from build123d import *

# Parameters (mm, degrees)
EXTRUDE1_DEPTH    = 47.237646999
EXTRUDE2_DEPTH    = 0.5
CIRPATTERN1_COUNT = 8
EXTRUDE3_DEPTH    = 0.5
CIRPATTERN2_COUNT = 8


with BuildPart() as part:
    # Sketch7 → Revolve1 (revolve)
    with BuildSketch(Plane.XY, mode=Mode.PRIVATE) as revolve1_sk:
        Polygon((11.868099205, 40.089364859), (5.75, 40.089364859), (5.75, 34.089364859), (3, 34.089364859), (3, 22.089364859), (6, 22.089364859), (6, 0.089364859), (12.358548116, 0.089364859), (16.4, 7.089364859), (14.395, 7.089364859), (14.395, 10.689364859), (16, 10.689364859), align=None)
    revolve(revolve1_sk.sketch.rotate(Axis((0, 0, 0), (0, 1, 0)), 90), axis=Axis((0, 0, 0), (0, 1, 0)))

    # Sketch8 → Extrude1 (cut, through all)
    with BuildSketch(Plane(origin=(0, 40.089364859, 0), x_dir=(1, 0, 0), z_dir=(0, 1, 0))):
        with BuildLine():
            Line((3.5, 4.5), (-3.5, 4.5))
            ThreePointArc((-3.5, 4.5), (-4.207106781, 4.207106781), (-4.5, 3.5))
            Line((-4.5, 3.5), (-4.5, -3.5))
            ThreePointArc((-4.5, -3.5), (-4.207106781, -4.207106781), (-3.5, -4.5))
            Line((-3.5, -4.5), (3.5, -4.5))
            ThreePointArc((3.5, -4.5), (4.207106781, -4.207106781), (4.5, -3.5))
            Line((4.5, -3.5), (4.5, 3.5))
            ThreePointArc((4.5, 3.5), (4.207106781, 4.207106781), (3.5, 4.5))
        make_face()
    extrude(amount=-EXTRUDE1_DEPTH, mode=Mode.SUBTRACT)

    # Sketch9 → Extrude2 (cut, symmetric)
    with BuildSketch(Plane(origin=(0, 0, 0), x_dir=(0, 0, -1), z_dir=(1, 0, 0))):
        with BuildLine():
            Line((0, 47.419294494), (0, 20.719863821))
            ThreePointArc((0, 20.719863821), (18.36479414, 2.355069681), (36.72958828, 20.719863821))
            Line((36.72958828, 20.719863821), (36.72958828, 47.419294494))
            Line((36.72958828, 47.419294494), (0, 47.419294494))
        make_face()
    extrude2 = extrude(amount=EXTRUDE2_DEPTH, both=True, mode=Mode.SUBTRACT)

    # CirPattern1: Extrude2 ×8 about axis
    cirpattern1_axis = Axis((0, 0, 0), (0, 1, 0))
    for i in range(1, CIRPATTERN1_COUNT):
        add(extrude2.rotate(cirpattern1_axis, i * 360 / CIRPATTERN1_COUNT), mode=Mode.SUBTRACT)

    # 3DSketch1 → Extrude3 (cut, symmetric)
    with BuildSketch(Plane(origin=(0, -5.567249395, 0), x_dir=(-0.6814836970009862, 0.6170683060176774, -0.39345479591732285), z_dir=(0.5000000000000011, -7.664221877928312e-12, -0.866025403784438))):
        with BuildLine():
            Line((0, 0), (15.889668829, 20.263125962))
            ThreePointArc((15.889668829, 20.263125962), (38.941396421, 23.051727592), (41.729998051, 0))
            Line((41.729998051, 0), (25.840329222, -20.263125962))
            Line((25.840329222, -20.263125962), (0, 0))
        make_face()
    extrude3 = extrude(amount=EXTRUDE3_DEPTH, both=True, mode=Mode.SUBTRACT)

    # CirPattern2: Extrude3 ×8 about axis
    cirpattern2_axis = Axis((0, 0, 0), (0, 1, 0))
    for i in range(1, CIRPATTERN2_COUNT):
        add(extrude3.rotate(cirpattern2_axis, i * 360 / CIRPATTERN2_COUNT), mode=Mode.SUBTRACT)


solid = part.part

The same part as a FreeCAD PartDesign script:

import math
import FreeCAD as App
import Part
import Sketcher
Q = App.Units.Quantity

doc = App.newDocument("Part")
body = doc.addObject("PartDesign::Body", "Body")

sketch1 = body.newObject("Sketcher::SketchObject", "Sketch")
sketch1.AttachmentSupport = (doc.getObject("XY_Plane"), [""])
sketch1.MapMode = "FlatFace"
sketch1.addGeometry([
    Part.LineSegment(App.Vector(11.9, 40.1, 0), App.Vector(5.8, 40.1, 0)),
    Part.LineSegment(App.Vector(5.8, 40.1, 0), App.Vector(5.8, 34.1, 0)),
    Part.LineSegment(App.Vector(5.8, 34.1, 0), App.Vector(3, 34.1, 0)),
    Part.LineSegment(App.Vector(3, 34.1, 0), App.Vector(3, 22.1, 0)),
    Part.LineSegment(App.Vector(3, 22.1, 0), App.Vector(6, 22.1, 0)),
    Part.LineSegment(App.Vector(6, 22.1, 0), App.Vector(6, 0.1, 0)),
    Part.LineSegment(App.Vector(6, 0.1, 0), App.Vector(12.4, 0.1, 0)),
    Part.LineSegment(App.Vector(12.4, 0.1, 0), App.Vector(16.4, 7.1, 0)),
    Part.LineSegment(App.Vector(16.4, 7.1, 0), App.Vector(14.4, 7.1, 0)),
    Part.LineSegment(App.Vector(14.4, 7.1, 0), App.Vector(14.4, 10.7, 0)),
    Part.LineSegment(App.Vector(14.4, 10.7, 0), App.Vector(16, 10.7, 0)),
    Part.LineSegment(App.Vector(16, 10.7, 0), App.Vector(11.9, 40.1, 0)),
], False)
sketch1.addConstraint([
    Sketcher.Constraint("Coincident", 0, 2, 1, 1),
    Sketcher.Constraint("Coincident", 1, 2, 2, 1),
    Sketcher.Constraint("Coincident", 2, 2, 3, 1),
    Sketcher.Constraint("Coincident", 3, 2, 4, 1),
    Sketcher.Constraint("Coincident", 4, 2, 5, 1),
    Sketcher.Constraint("Coincident", 5, 2, 6, 1),
    Sketcher.Constraint("Coincident", 6, 2, 7, 1),
    Sketcher.Constraint("Coincident", 7, 2, 8, 1),
    Sketcher.Constraint("Coincident", 8, 2, 9, 1),
    Sketcher.Constraint("Coincident", 9, 2, 10, 1),
    Sketcher.Constraint("Coincident", 10, 2, 11, 1),
    Sketcher.Constraint("Coincident", 11, 2, 0, 1),
    Sketcher.Constraint("Horizontal", 0),
    Sketcher.Constraint("Vertical", 1),
    Sketcher.Constraint("Horizontal", 2),
    Sketcher.Constraint("Vertical", 3),
    Sketcher.Constraint("Horizontal", 4),
    Sketcher.Constraint("Vertical", 5),
    Sketcher.Constraint("Horizontal", 6),
    Sketcher.Constraint("Horizontal", 8),
    Sketcher.Constraint("Vertical", 9),
    Sketcher.Constraint("Horizontal", 10),
    Sketcher.Constraint("DistanceX", 4, 1, 4, 2, Q("3 mm")),
    Sketcher.Constraint("DistanceY", 1, 2, 1, 1, Q("6 mm")),
    Sketcher.Constraint("DistanceY", 3, 2, 3, 1, Q("12 mm")),
    Sketcher.Constraint("DistanceY", 5, 2, 5, 1, Q("22 mm")),
    Sketcher.Constraint("Angle", 7, Q("60 deg")),
    Sketcher.Constraint("Angle", 11, Q("98 deg")),
    Sketcher.Constraint("DistanceY", 9, 1, 9, 2, Q("3.6 mm")),
    Sketcher.Constraint("DistanceX", -1, 1, 2, 2, Q("3 mm")),
    Sketcher.Constraint("DistanceX", -1, 1, 10, 2, Q("16 mm")),
    Sketcher.Constraint("DistanceY", 6, 2, 7, 2, Q("7 mm")),
    Sketcher.Constraint("DistanceX", 2, 2, 2, 1, Q("2.75 mm")),
    Sketcher.Constraint("DistanceX", -1, 1, 7, 2, Q("16.4 mm")),
    Sketcher.Constraint("DistanceX", 8, 2, 8, 1, Q("2.005 mm")),
    Sketcher.Constraint("DistanceY", -1, 1, 0, 2, Q("40.089365 mm")),
])
revolution = body.newObject("PartDesign::Revolution", "Revolution")
revolution.Profile = sketch1
revolution.ReferenceAxis = (sketch1, ["V_Axis"])
revolution.Angle = 360

sketch2 = body.newObject("Sketcher::SketchObject", "Sketch001")
sketch2.AttachmentSupport = (doc.getObject("XZ_Plane"), [""])
sketch2.MapMode = "FlatFace"
sketch2.AttachmentOffset = App.Placement(App.Vector(0, 0, -40.089365), App.Rotation())
sketch2.addGeometry([
    Part.LineSegment(App.Vector(3.5, -4.5, 0), App.Vector(-3.5, -4.5, 0)),
    Part.ArcOfCircle(Part.Circle(App.Vector(-3.5, -3.5, 0), App.Vector(0, 0, 1), 1), math.radians(-180), math.radians(-90)),
    Part.LineSegment(App.Vector(-4.5, -3.5, 0), App.Vector(-4.5, 3.5, 0)),
    Part.ArcOfCircle(Part.Circle(App.Vector(-3.5, 3.5, 0), App.Vector(0, 0, 1), 1), math.radians(90), math.radians(180)),
    Part.LineSegment(App.Vector(-3.5, 4.5, 0), App.Vector(3.5, 4.5, 0)),
    Part.ArcOfCircle(Part.Circle(App.Vector(3.5, 3.5, 0), App.Vector(0, 0, 1), 1), math.radians(0), math.radians(90)),
    Part.LineSegment(App.Vector(4.5, 3.5, 0), App.Vector(4.5, -3.5, 0)),
    Part.ArcOfCircle(Part.Circle(App.Vector(3.5, -3.5, 0), App.Vector(0, 0, 1), 1), math.radians(-90), math.radians(0)),
], False)
sketch2.addConstraint([
    Sketcher.Constraint("Tangent", 0, 2, 1, 2),
    Sketcher.Constraint("Tangent", 1, 1, 2, 1),
    Sketcher.Constraint("Tangent", 2, 2, 3, 2),
    Sketcher.Constraint("Tangent", 3, 1, 4, 1),
    Sketcher.Constraint("Tangent", 4, 2, 5, 2),
    Sketcher.Constraint("Tangent", 5, 1, 6, 1),
    Sketcher.Constraint("Tangent", 6, 2, 7, 2),
    Sketcher.Constraint("Tangent", 7, 1, 0, 1),
    Sketcher.Constraint("Horizontal", 0),
    Sketcher.Constraint("Vertical", 2),
    Sketcher.Constraint("Horizontal", 4),
    Sketcher.Constraint("Vertical", 6),
    Sketcher.Constraint("Equal", 1, 3),
    Sketcher.Constraint("Equal", 3, 5),
    Sketcher.Constraint("Equal", 5, 7),
    Sketcher.Constraint("Symmetric", 1, 3, 5, 3, -1, 1),
    Sketcher.Constraint("Equal", 4, 2),
    Sketcher.Constraint("Radius", 1, Q("1 mm")),
    Sketcher.Constraint("DistanceX", 0, 2, 0, 1, Q("7 mm")),
])
pocket1 = body.newObject("PartDesign::Pocket", "Pocket")
pocket1.Profile = sketch2
pocket1.Type = "ThroughAll"
pocket1.Reversed = True

sketch3 = body.newObject("Sketcher::SketchObject", "Sketch002")
sketch3.AttachmentSupport = (doc.getObject("YZ_Plane"), [""])
sketch3.MapMode = "FlatFace"
sketch3.addGeometry([
    Part.LineSegment(App.Vector(47, 0, 0), App.Vector(21, 0, 0)),
    Part.ArcOfCircle(Part.Circle(App.Vector(21, -18, 0), App.Vector(0, 0, 1), 18), math.radians(90), math.radians(270)),
    Part.LineSegment(App.Vector(21, -37, 0), App.Vector(47, -37, 0)),
    Part.LineSegment(App.Vector(47, -37, 0), App.Vector(47, 0, 0)),
], False)
sketch3.addConstraint([
    Sketcher.Constraint("Tangent", 0, 2, 1, 1),
    Sketcher.Constraint("Tangent", 1, 2, 2, 1),
    Sketcher.Constraint("Coincident", 2, 2, 3, 1),
    Sketcher.Constraint("Coincident", 3, 2, 0, 1),
    Sketcher.Constraint("Horizontal", 0),
    Sketcher.Constraint("Horizontal", 2),
    Sketcher.Constraint("Vertical", 3),
    Sketcher.Constraint("PointOnObject", 0, 2, -1),
    Sketcher.Constraint("Radius", 1, Q("18.364794 mm")),
    Sketcher.Constraint("DistanceX", 0, 2, 0, 1, Q("26.699431 mm")),
    Sketcher.Constraint("DistanceX", -1, 1, 1, 3, Q("20.719864 mm")),
])
pocket2 = body.newObject("PartDesign::Pocket", "Pocket001")
pocket2.Profile = sketch3
pocket2.Length = 1
pocket2.Midplane = True
doc.recompute()

polarpattern = body.newObject("PartDesign::PolarPattern", "PolarPattern")
polarpattern.Originals = [pocket2]
polarpattern.Axis = (doc.getObject("Y_Axis"), [""])
polarpattern.Angle = 360
polarpattern.Occurrences = 8
body.Tip = polarpattern

sketch4 = body.newObject("Sketcher::SketchObject", "Sketch003")
sketch4.Placement = App.Placement(App.Vector(0, -5.567249, 0), App.Rotation(App.Vector(-0.681483697, 0.617068306, -0.393454796), App.Vector(0.534396829, 0.786909592, 0.308534153), App.Vector(0.5, 0, -0.866025404), "ZXY"))
sketch4.addGeometry([
    Part.LineSegment(App.Vector(16, 20, 0), App.Vector(0, 0, 0)),
    Part.LineSegment(App.Vector(0, 0, 0), App.Vector(26, -20, 0)),
    Part.LineSegment(App.Vector(26, -20, 0), App.Vector(42, 0, 0)),
    Part.ArcOfCircle(Part.Circle(App.Vector(29, 10, 0), App.Vector(0, 0, 1), 16), math.radians(-38), math.radians(142)),
], False)
sketch4.addConstraint([
    Sketcher.Constraint("Coincident", 0, 2, 1, 1),
    Sketcher.Constraint("Coincident", 1, 2, 2, 1),
    Sketcher.Constraint("Tangent", 2, 2, 3, 1),
    Sketcher.Constraint("Tangent", 3, 2, 0, 1),
    Sketcher.Constraint("Coincident", 0, 2, -1, 1),
    Sketcher.Constraint("PointOnObject", 2, 2, -1),
    Sketcher.Constraint("Perpendicular", 0, 1),
    Sketcher.Constraint("Perpendicular", 1, 2),
    Sketcher.Constraint("DistanceX", -1, 1, 2, 2, Q("41.729998 mm")),
    Sketcher.Constraint("Radius", 3, Q("16.418868 mm")),
])
pocket3 = body.newObject("PartDesign::Pocket", "Pocket002")
pocket3.Profile = sketch4
pocket3.Length = 1
pocket3.Midplane = True
doc.recompute()

polarpattern2 = body.newObject("PartDesign::PolarPattern", "PolarPattern001")
polarpattern2.Originals = [pocket3]
polarpattern2.Axis = (doc.getObject("Y_Axis"), [""])
polarpattern2.Angle = 360
polarpattern2.Occurrences = 8
body.Tip = polarpattern2

doc.recompute()
